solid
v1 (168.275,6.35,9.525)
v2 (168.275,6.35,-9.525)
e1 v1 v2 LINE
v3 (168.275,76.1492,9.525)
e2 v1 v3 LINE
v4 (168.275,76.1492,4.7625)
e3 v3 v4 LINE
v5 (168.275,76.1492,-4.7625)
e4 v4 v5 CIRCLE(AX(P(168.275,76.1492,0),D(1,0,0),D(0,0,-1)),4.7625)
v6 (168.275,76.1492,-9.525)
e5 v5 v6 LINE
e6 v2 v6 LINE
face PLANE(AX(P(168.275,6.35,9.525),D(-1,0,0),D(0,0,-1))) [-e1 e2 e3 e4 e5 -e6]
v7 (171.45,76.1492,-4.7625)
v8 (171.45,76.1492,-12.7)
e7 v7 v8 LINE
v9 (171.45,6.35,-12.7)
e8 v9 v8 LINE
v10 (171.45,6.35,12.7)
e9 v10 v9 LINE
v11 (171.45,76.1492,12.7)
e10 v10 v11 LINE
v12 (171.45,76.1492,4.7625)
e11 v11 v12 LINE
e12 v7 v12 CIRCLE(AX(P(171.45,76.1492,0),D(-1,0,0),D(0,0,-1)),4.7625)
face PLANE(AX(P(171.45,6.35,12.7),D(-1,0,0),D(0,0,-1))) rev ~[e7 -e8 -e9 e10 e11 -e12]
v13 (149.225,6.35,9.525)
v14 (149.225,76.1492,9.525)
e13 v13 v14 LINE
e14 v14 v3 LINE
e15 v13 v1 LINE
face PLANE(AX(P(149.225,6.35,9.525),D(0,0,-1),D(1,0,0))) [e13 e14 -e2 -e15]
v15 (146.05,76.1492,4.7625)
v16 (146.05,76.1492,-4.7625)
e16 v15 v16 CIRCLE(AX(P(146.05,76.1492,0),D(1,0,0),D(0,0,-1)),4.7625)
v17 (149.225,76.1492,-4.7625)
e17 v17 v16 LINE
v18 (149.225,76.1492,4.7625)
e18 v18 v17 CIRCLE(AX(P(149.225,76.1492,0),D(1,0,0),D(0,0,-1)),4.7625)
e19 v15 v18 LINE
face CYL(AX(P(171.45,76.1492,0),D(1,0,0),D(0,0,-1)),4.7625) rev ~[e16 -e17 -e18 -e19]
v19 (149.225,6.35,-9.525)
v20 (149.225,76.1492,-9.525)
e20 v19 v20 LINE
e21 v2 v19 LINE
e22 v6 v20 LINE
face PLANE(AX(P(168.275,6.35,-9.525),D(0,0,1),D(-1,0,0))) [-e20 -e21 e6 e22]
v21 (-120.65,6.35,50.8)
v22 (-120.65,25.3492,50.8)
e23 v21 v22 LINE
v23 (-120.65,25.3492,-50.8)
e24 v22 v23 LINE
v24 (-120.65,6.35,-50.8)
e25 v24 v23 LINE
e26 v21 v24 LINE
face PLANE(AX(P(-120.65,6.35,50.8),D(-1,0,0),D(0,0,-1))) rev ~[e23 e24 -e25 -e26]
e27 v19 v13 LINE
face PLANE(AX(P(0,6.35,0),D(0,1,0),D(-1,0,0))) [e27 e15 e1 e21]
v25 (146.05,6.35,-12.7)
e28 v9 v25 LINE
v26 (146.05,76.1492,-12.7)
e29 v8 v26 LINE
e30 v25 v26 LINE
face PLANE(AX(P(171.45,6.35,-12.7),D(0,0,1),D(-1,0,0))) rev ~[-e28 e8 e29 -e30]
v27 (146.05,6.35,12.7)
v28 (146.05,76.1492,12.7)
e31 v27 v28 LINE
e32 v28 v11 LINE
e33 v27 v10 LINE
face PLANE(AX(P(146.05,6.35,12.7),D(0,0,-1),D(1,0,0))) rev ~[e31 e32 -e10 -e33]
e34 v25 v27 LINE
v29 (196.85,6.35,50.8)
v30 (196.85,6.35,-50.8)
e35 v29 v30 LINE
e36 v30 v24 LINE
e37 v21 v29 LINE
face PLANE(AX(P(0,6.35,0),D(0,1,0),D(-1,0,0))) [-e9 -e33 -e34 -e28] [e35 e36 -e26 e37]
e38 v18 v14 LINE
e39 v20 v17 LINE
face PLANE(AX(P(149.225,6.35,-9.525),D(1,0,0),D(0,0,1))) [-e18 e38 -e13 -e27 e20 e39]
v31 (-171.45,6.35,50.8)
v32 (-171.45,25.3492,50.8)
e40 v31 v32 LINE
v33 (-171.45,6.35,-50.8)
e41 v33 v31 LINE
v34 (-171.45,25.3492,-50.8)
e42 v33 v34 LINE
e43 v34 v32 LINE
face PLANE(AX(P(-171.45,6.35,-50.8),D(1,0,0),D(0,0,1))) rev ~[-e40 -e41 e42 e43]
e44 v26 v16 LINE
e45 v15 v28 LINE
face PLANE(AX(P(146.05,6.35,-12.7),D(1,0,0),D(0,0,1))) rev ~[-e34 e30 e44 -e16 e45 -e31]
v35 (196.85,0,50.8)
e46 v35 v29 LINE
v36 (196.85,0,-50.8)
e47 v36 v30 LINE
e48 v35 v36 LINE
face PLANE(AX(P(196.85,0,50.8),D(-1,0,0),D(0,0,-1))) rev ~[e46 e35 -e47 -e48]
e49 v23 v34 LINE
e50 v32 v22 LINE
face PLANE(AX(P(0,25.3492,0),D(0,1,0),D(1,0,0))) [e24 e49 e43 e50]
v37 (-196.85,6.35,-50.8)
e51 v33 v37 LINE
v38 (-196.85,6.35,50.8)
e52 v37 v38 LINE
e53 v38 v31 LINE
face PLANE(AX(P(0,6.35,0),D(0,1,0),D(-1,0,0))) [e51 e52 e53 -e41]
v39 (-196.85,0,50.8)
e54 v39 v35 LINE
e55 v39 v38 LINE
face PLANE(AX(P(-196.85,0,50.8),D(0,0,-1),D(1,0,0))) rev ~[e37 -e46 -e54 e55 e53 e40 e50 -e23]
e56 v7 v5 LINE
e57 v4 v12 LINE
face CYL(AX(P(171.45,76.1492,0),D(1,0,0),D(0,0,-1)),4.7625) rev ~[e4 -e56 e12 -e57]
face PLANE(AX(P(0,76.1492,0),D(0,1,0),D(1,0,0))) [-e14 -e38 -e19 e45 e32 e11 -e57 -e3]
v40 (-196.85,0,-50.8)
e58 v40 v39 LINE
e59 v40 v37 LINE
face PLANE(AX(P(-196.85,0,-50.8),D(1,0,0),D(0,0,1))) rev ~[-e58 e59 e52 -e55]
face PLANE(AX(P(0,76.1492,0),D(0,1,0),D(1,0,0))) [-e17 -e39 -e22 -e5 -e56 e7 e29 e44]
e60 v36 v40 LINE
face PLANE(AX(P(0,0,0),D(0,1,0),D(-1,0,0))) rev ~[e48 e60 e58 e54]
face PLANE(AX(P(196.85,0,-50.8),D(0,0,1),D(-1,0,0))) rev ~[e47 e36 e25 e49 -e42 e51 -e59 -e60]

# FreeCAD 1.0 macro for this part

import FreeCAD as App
import Part
import Sketcher

V = App.Vector
Q = App.Units.Quantity

doc = App.newDocument("Part")
body = doc.addObject("PartDesign::Body", "Body")

# Sketch on XZ plane
sketch1 = body.newObject("Sketcher::SketchObject", "Sketch")
sketch1.AttachmentSupport = (doc.getObject("XZ_Plane"), [""])
sketch1.MapMode = "FlatFace"
sketch1.addGeometry([
    Part.LineSegment(V(-197, -51, 0), V(-197, 51, 0)),
    Part.LineSegment(V(-197, 51, 0), V(197, 51, 0)),
    Part.LineSegment(V(197, 51, 0), V(197, -51, 0)),
    Part.LineSegment(V(197, -51, 0), V(-197, -51, 0)),
], False)
sketch1.addConstraint([
    Sketcher.Constraint("Coincident", 0, 2, 1, 1),
    Sketcher.Constraint("Coincident", 1, 2, 2, 1),
    Sketcher.Constraint("Coincident", 2, 2, 3, 1),
    Sketcher.Constraint("Coincident", 3, 2, 0, 1),
    Sketcher.Constraint("Vertical", 0),
    Sketcher.Constraint("Horizontal", 1),
    Sketcher.Constraint("Vertical", 2),
    Sketcher.Constraint("Horizontal", 3),
    Sketcher.Constraint("Symmetric", 0, 2, 2, 2, -1, 1),
    Sketcher.Constraint("DistanceY", 0, 1, 0, 2, Q("4 in")),
    Sketcher.Constraint("DistanceX", 1, 1, 1, 2, Q("15.5 in")),
])
pad1 = body.newObject("PartDesign::Pad", "Pad")
pad1.Profile = sketch1
pad1.Length = Q("0.25 in")
pad1.Reversed = True

# Sketch on XZ plane
sketch2 = body.newObject("Sketcher::SketchObject", "Sketch001")
sketch2.AttachmentSupport = (doc.getObject("XZ_Plane"), [""])
sketch2.MapMode = "FlatFace"
sketch2.AttachmentOffset = App.Placement(V(0, 0, -0.25 * 25.4), App.Rotation())
sketch2.addGeometry([
    Part.LineSegment(V(146, -13, 0), V(146, 13, 0)),  # 0
    Part.LineSegment(V(146, 13, 0), V(171, 13, 0)),  # 1
    Part.LineSegment(V(171, 13, 0), V(171, -13, 0)),  # 2
    Part.LineSegment(V(171, -13, 0), V(146, -13, 0)),  # 3
    Part.LineSegment(V(168, 10, 0), V(149, 10, 0)),  # 4
    Part.LineSegment(V(149, 10, 0), V(149, -10, 0)),  # 5
    Part.LineSegment(V(149, -10, 0), V(168, -10, 0)),  # 6
    Part.LineSegment(V(168, -10, 0), V(168, 10, 0)),  # 7
], False)
sketch2.addConstraint([
    Sketcher.Constraint("Coincident", 0, 2, 1, 1),
    Sketcher.Constraint("Coincident", 1, 2, 2, 1),
    Sketcher.Constraint("Coincident", 2, 2, 3, 1),
    Sketcher.Constraint("Coincident", 3, 2, 0, 1),
    Sketcher.Constraint("Coincident", 4, 2, 5, 1),
    Sketcher.Constraint("Coincident", 5, 2, 6, 1),
    Sketcher.Constraint("Coincident", 6, 2, 7, 1),
    Sketcher.Constraint("Coincident", 7, 2, 4, 1),
    Sketcher.Constraint("Vertical", 0),
    Sketcher.Constraint("Horizontal", 1),
    Sketcher.Constraint("Vertical", 2),
    Sketcher.Constraint("Horizontal", 3),
    Sketcher.Constraint("Horizontal", 4),
    Sketcher.Constraint("Vertical", 5),
    Sketcher.Constraint("Horizontal", 6),
    Sketcher.Constraint("Vertical", 7),
    Sketcher.Constraint("Equal", 3, 0),
    Sketcher.Constraint("Equal", 6, 5),
    Sketcher.Constraint("DistanceX", 1, 1, 1, 2, Q("1 in")),
    Sketcher.Constraint("DistanceX", 0, 2, 4, 2, Q("0.125 in")),
    Sketcher.Constraint("DistanceY", 4, 2, 0, 2, Q("0.125 in")),
    Sketcher.Constraint("DistanceY", 3, 2, 5, 2, Q("0.125 in")),
    Sketcher.Constraint("DistanceY", -1, 1, 0, 2, Q("0.5 in")),
    Sketcher.Constraint("DistanceX", -1, 1, 0, 2, Q("5.75 in")),
])
pad2 = body.newObject("PartDesign::Pad", "Pad001")
pad2.Profile = sketch2
pad2.Length = Q("2.748 in")
pad2.Reversed = True

# Sketch on YZ plane
sketch3 = body.newObject("Sketcher::SketchObject", "Sketch002")
sketch3.AttachmentSupport = (doc.getObject("YZ_Plane"), [""])
sketch3.MapMode = "FlatFace"
sketch3.AttachmentOffset = App.Placement(V(0, 0, 6.75 * 25.4), App.Rotation())
sketch3.addGeometry(Part.Circle(V(76.1, 0, 0), V(0, 0, 1), 4.8), False)
sketch3.addConstraint([
    Sketcher.Constraint("PointOnObject", 0, 3, -1),
    Sketcher.Constraint("Diameter", 0, Q("0.375 in")),
    Sketcher.Constraint("DistanceX", -1, 1, 0, 3, Q("2.998 in")),
])
pocket1 = body.newObject("PartDesign::Pocket", "Pocket")
pocket1.Profile = sketch3
pocket1.Type = "ThroughAll"

# Sketch on XZ plane
sketch4 = body.newObject("Sketcher::SketchObject", "Sketch003")
sketch4.AttachmentSupport = (doc.getObject("XZ_Plane"), [""])
sketch4.MapMode = "FlatFace"
sketch4.AttachmentOffset = App.Placement(V(0, 0, -0.25 * 25.4), App.Rotation())
sketch4.addGeometry([
    Part.LineSegment(V(-171, -51, 0), V(-171, 51, 0)),
    Part.LineSegment(V(-171, 51, 0), V(-121, 51, 0)),
    Part.LineSegment(V(-121, 51, 0), V(-121, -51, 0)),
    Part.LineSegment(V(-121, -51, 0), V(-171, -51, 0)),
], False)
sketch4.addConstraint([
    Sketcher.Constraint("Coincident", 0, 2, 1, 1),
    Sketcher.Constraint("Coincident", 1, 2, 2, 1),
    Sketcher.Constraint("Coincident", 2, 2, 3, 1),
    Sketcher.Constraint("Coincident", 3, 2, 0, 1),
    Sketcher.Constraint("Vertical", 0),
    Sketcher.Constraint("Horizontal", 1),
    Sketcher.Constraint("Vertical", 2),
    Sketcher.Constraint("Horizontal", 3),
    Sketcher.Constraint("DistanceX", 1, 1, 1, 2, Q("2 in")),
    Sketcher.Constraint("DistanceY", 0, 1, 0, 2, Q("4 in")),
    Sketcher.Constraint("DistanceY", -1, 1, 0, 2, Q("2 in")),
    Sketcher.Constraint("DistanceX", 0, 2, -1, 1, Q("6.75 in")),
])
pad3 = body.newObject("PartDesign::Pad", "Pad002")
pad3.Profile = sketch4
pad3.Length = Q("0.748 in")
pad3.Reversed = True

doc.recompute()
